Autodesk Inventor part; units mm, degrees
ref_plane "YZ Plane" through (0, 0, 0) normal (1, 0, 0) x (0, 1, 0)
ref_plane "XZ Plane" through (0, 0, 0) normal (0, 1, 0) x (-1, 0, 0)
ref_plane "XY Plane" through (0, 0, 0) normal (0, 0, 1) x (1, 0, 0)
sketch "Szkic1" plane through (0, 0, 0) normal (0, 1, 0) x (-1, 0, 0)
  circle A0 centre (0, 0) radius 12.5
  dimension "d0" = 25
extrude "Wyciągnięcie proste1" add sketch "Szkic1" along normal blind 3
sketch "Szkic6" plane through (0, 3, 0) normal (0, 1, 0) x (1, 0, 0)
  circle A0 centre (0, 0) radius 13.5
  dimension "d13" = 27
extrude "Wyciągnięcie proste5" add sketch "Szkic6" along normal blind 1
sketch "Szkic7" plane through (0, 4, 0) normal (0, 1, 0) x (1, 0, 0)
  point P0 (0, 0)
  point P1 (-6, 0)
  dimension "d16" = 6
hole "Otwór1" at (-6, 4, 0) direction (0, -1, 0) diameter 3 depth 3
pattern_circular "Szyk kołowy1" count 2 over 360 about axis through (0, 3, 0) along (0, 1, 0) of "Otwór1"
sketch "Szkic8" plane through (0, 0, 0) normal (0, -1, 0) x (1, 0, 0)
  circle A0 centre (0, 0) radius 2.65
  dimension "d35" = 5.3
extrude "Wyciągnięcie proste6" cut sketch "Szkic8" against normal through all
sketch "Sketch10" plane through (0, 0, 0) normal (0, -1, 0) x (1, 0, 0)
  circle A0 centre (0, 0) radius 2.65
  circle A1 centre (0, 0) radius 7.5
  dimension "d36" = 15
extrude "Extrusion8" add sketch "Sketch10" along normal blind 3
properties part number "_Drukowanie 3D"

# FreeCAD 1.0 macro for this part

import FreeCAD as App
import Part
import Sketcher
Q = App.Units.Quantity

doc = App.newDocument("Part")
body = doc.addObject("PartDesign::Body", "Body")

# Sketch on XZ plane
sketch1 = doc.addObject("Sketcher::SketchObject", "Sketch")
body.addObject(sketch1)
sketch1.AttachmentSupport = (doc.XZ_Plane, [""])
sketch1.MapMode = "FlatFace"
sketch1.addGeometry(Part.Circle(App.Vector(0, 0, 0), App.Vector(0, 0, 1), 12), False)
sketch1.addConstraint([
    Sketcher.Constraint("Coincident", 0, 3, -1, 1),
    Sketcher.Constraint("Diameter", 0, Q("25 mm")),
])
pad1 = doc.addObject("PartDesign::Pad", "Pad")
body.addObject(pad1)
pad1.Profile = sketch1
pad1.Length = 3
pad1.Reversed = True

# Sketch on XZ plane
sketch2 = doc.addObject("Sketcher::SketchObject", "Sketch001")
body.addObject(sketch2)
sketch2.AttachmentSupport = (doc.XZ_Plane, [""])
sketch2.MapMode = "FlatFace"
sketch2.AttachmentOffset = App.Placement(App.Vector(0, 0, -3), App.Rotation())
sketch2.addGeometry(Part.Circle(App.Vector(0, 0, 0), App.Vector(0, 0, 1), 14), False)
sketch2.addConstraint([
    Sketcher.Constraint("Coincident", 0, 3, -1, 1),
    Sketcher.Constraint("Diameter", 0, Q("27 mm")),
])
pad2 = doc.addObject("PartDesign::Pad", "Pad001")
body.addObject(pad2)
pad2.Profile = sketch2
pad2.Length = 1
pad2.Reversed = True

# Sketch on XZ plane
sketch3 = doc.addObject("Sketcher::SketchObject", "Sketch002")
body.addObject(sketch3)
sketch3.AttachmentSupport = (doc.XZ_Plane, [""])
sketch3.MapMode = "FlatFace"
sketch3.AttachmentOffset = App.Placement(App.Vector(0, 0, -4), App.Rotation())
sketch3.addGeometry(Part.Circle(App.Vector(-6, 0, 0), App.Vector(0, 0, 1), 1.5), False)
sketch3.addConstraint([
    Sketcher.Constraint("PointOnObject", 0, 3, -1),
    Sketcher.Constraint("Diameter", 0, Q("3 mm")),
    Sketcher.Constraint("DistanceX", 0, 3, -1, 1, Q("6 mm")),
])
doc.recompute()
hole = doc.addObject("PartDesign::Hole", "Hole")
body.addObject(hole)
hole.Profile = sketch3
hole.ThreadType = "None"
hole.Diameter = 3
hole.DepthType = "Dimension"
hole.Depth = 3
hole.DrillPoint = "Flat"
hole.Reversed = True
doc.recompute()

polarpattern = doc.addObject("PartDesign::PolarPattern", "PolarPattern")
body.addObject(polarpattern)
polarpattern.Originals = [hole]
polarpattern.Axis = (doc.Y_Axis, [""])
polarpattern.Angle = 360
polarpattern.Occurrences = 2
body.Tip = polarpattern

# Sketch on XZ plane
sketch4 = doc.addObject("Sketcher::SketchObject", "Sketch003")
body.addObject(sketch4)
sketch4.AttachmentSupport = (doc.XZ_Plane, [""])
sketch4.MapMode = "FlatFace"
sketch4.addGeometry(Part.Circle(App.Vector(0, 0, 0), App.Vector(0, 0, 1), 2.6), False)
sketch4.addConstraint([
    Sketcher.Constraint("Coincident", 0, 3, -1, 1),
    Sketcher.Constraint("Diameter", 0, Q("5.3 mm")),
])
pocket1 = doc.addObject("PartDesign::Pocket", "Pocket")
body.addObject(pocket1)
pocket1.Profile = sketch4
pocket1.Type = "ThroughAll"

# Sketch on XZ plane
sketch5 = doc.addObject("Sketcher::SketchObject", "Sketch004")
body.addObject(sketch5)
sketch5.AttachmentSupport = (doc.XZ_Plane, [""])
sketch5.MapMode = "FlatFace"
sketch5.addGeometry([
    Part.Circle(App.Vector(0, 0, 0), App.Vector(0, 0, 1), 7.5),
    Part.Circle(App.Vector(0, 0, 0), App.Vector(0, 0, 1), 2.6),
], False)
sketch5.addConstraint([
    Sketcher.Constraint("Coincident", 0, 3, -1, 1),
    Sketcher.Constraint("Coincident", 1, 3, -1, 1),
    Sketcher.Constraint("Diameter", 0, Q("15 mm")),
    Sketcher.Constraint("Diameter", 1, Q("5.3 mm")),
])
pad3 = doc.addObject("PartDesign::Pad", "Pad002")
body.addObject(pad3)
pad3.Profile = sketch5
pad3.Length = 3

doc.recompute()
